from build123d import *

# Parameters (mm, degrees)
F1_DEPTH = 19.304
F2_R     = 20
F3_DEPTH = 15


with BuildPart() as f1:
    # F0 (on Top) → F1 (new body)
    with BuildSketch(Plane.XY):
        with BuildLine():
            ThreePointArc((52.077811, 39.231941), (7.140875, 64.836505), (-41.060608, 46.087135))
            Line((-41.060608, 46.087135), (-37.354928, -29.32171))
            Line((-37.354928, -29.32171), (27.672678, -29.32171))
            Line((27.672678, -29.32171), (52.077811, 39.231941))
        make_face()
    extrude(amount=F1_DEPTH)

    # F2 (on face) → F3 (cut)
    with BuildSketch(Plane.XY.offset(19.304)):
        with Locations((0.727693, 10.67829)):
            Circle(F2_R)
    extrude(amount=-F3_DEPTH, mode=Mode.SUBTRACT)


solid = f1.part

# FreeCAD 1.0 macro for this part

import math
import FreeCAD as App
import Part
import Sketcher
Q = App.Units.Quantity

doc = App.newDocument("Part")
params = doc.addObject("Spreadsheet::Sheet", "Params")
for row, (alias, value) in enumerate([
    ("pad1_length", "19.304 mm"),
    ("sketch2_diameter", "40 mm"),
    ("pocket1_length", "15 mm"),
], start=1):
    params.set(f"A{row}", alias)
    params.set(f"B{row}", "=" + value)
    params.setAlias(f"B{row}", alias)

body = doc.addObject("PartDesign::Body", "Body")

# Sketch on XY plane
sketch1 = body.newObject("Sketcher::SketchObject", "Sketch")
sketch1.AttachmentSupport = (doc.getObject("XY_Plane"), [""])
sketch1.MapMode = "FlatFace"
sketch1.addGeometry([
    Part.ArcOfCircle(Part.Circle(App.Vector(3, 5, 0), App.Vector(0, 0, 1), 60), math.radians(35), math.radians(137)),
    Part.LineSegment(App.Vector(-41, 46, 0), App.Vector(-37, -29, 0)),
    Part.LineSegment(App.Vector(-37, -29, 0), App.Vector(28, -29, 0)),
    Part.LineSegment(App.Vector(28, -29, 0), App.Vector(52, 39, 0)),
], False)
sketch1.addConstraint([
    Sketcher.Constraint("Coincident", 0, 2, 1, 1),
    Sketcher.Constraint("Coincident", 1, 2, 2, 1),
    Sketcher.Constraint("Coincident", 2, 2, 3, 1),
    Sketcher.Constraint("Coincident", 3, 2, 0, 1),
    Sketcher.Constraint("Horizontal", 2),
    Sketcher.Constraint("Radius", 0, Q("60.145866 mm")),
    Sketcher.Constraint("Distance", 1, Q("75.499841 mm")),
    Sketcher.Constraint("Distance", 3, Q("72.768218 mm")),
    Sketcher.Constraint("DistanceX", 2, 1, 2, 2, Q("65.027606 mm")),
    Sketcher.Constraint("DistanceX", -1, 1, 0, 3, Q("2.725949 mm")),
    Sketcher.Constraint("DistanceY", 1, 2, -1, 1, Q("29.32171 mm")),
    Sketcher.Constraint("DistanceX", -1, 1, 2, 2, Q("27.672678 mm")),
    Sketcher.Constraint("DistanceX", -1, 1, 3, 2, Q("52.077811 mm")),
])
pad1 = body.newObject("PartDesign::Pad", "Pad")
pad1.Profile = sketch1
pad1.setExpression("Length", "Params.pad1_length")

# Sketch on XY plane
sketch2 = body.newObject("Sketcher::SketchObject", "Sketch001")
sketch2.AttachmentSupport = (doc.getObject("XY_Plane"), [""])
sketch2.MapMode = "FlatFace"
sketch2.AttachmentOffset = App.Placement(App.Vector(0, 0, 19.304), App.Rotation())
sketch2.addGeometry(Part.Circle(App.Vector(1, 11, 0), App.Vector(0, 0, 1), 20), False)
sketch2.addConstraint([
    Sketcher.Constraint("Diameter", 0, Q("40 mm")),
    Sketcher.Constraint("DistanceY", -1, 1, 0, 3, Q("10.67829 mm")),
    Sketcher.Constraint("DistanceX", -1, 1, 0, 3, Q("0.727693 mm")),
])
sketch2.setExpression("Constraints[0]", "Params.sketch2_diameter")
pocket1 = body.newObject("PartDesign::Pocket", "Pocket")
pocket1.Profile = sketch2
pocket1.setExpression("Length", "Params.pocket1_length")

doc.recompute()
